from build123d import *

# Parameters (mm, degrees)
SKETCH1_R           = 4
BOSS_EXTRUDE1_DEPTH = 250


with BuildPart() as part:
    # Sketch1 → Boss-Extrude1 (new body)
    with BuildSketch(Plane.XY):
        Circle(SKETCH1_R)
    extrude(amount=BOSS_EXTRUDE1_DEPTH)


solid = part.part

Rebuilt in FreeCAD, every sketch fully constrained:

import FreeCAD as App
import Part
import Sketcher
Q = App.Units.Quantity

doc = App.newDocument("Part")
params = doc.addObject("Spreadsheet::Sheet", "Params")
for row, (alias, value) in enumerate([
    ("sketch1_diameter", "8 mm"),
    ("pad1_length", "250 mm"),
], start=1):
    params.set(f"A{row}", alias)
    params.set(f"B{row}", "=" + value)
    params.setAlias(f"B{row}", alias)

body = doc.addObject("PartDesign::Body", "Body")

sketch1 = body.newObject("Sketcher::SketchObject", "Sketch")
sketch1.AttachmentSupport = (doc.getObject("XY_Plane"), [""])
sketch1.MapMode = "FlatFace"
sketch1.addGeometry(Part.Circle(App.Vector(0, 0, 0), App.Vector(0, 0, 1), 4), False)
sketch1.addConstraint(Sketcher.Constraint("Coincident", 0, 3, -1, 1))
sketch1.addConstraint(Sketcher.Constraint("Diameter", 0, Q("8 mm")))
sketch1.setExpression("Constraints[1]", "Params.sketch1_diameter")
pad1 = body.newObject("PartDesign::Pad", "Pad")
pad1.Profile = sketch1
pad1.setExpression("Length", "Params.pad1_length")

doc.recompute()
